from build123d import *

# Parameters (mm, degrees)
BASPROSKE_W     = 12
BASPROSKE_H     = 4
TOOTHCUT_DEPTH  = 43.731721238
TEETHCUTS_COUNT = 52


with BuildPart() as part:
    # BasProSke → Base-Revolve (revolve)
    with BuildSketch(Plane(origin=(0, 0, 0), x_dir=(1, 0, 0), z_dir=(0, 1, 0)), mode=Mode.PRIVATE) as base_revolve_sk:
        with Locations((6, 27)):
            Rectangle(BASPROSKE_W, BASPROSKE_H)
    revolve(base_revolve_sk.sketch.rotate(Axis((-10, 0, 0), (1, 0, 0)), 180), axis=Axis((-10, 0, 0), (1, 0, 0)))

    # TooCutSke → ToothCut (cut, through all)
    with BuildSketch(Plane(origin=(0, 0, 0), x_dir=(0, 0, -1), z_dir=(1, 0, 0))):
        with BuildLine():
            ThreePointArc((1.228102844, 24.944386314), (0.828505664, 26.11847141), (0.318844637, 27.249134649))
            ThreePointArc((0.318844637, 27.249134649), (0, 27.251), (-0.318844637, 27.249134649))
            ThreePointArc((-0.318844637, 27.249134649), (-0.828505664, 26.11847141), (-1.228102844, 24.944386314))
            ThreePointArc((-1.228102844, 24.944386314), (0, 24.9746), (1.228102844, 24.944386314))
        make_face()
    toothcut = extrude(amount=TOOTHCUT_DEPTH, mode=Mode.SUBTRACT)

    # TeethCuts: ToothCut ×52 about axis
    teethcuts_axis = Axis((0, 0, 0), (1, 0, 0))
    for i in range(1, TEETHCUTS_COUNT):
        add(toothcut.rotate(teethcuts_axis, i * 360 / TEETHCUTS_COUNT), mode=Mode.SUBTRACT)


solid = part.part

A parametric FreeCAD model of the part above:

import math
import FreeCAD as App
import Part
import Sketcher


def add_polygon(sketch, points):
    """Adds a closed chain of lines whose ends are joined by coincident constraints."""
    first, n = sketch.GeometryCount, len(points)
    for a, b in zip(points, points[1:] + points[:1]):
        sketch.addGeometry(Part.LineSegment(App.Vector(*a, 0), App.Vector(*b, 0)), False)
    for i in range(n):
        sketch.addConstraint(Sketcher.Constraint("Coincident", first + i, 2, first + (i + 1) % n, 1))

doc = App.newDocument("Part")
body = doc.addObject("PartDesign::Body", "Body")

# Sketch on XZ plane
sketch1 = body.newObject("Sketcher::SketchObject", "Sketch")
sketch1.AttachmentSupport = (doc.getObject("XZ_Plane"), [""])
sketch1.MapMode = "FlatFace"
add_polygon(sketch1, [(0, -29), (0, -25), (12, -25), (12, -29)])  # lines 0-3
sketch1.addConstraint(Sketcher.Constraint("Vertical", 0))
sketch1.addConstraint(Sketcher.Constraint("Horizontal", 1))
sketch1.addConstraint(Sketcher.Constraint("Vertical", 2))
sketch1.addConstraint(Sketcher.Constraint("Horizontal", 3))
sketch1.addConstraint(Sketcher.Constraint("PointOnObject", 0, 2, -2))
sketch1.addConstraint(Sketcher.Constraint("DistanceX", 1, 1, 1, 2, 12.0))
sketch1.addConstraint(Sketcher.Constraint("DistanceY", 0, 1, 0, 2, 4.0))
sketch1.addConstraint(Sketcher.Constraint("DistanceY", 0, 2, -1, 1, 25.0))
revolution = body.newObject("PartDesign::Revolution", "Revolution")
revolution.Profile = sketch1
revolution.ReferenceAxis = (sketch1, ["H_Axis"])
revolution.Angle = 360

# Sketch on YZ plane
sketch2 = body.newObject("Sketcher::SketchObject", "Sketch001")
sketch2.AttachmentSupport = (doc.getObject("YZ_Plane"), [""])
sketch2.MapMode = "FlatFace"
sketch2.addGeometry(Part.ArcOfCircle(Part.Circle(App.Vector(21.3, 11.3, 0), App.Vector(0, 0, 1), 13), math.radians(-73.94), math.radians(-63)), False)
sketch2.addGeometry(Part.ArcOfCircle(Part.Circle(App.Vector(0, 0, 0), App.Vector(0, 0, 1), 27.3), math.radians(-0.67), math.radians(0.67)), False)
sketch2.addGeometry(Part.ArcOfCircle(Part.Circle(App.Vector(21.3, -11.3, 0), App.Vector(0, 0, 1), 13), math.radians(63), math.radians(73.94)), False)
sketch2.addGeometry(Part.ArcOfCircle(Part.Circle(App.Vector(0, 0, 0), App.Vector(0, 0, 1), 25), math.radians(-2.82), math.radians(2.82)), False)
sketch2.addConstraint(Sketcher.Constraint("Coincident", 0, 2, 1, 1))
sketch2.addConstraint(Sketcher.Constraint("Coincident", 1, 2, 2, 1))
sketch2.addConstraint(Sketcher.Constraint("Coincident", 2, 2, 3, 2))
sketch2.addConstraint(Sketcher.Constraint("Coincident", 3, 1, 0, 1))
sketch2.addConstraint(Sketcher.Constraint("Coincident", 1, 3, -1, 1))
sketch2.addConstraint(Sketcher.Constraint("Coincident", 3, 3, -1, 1))
sketch2.addConstraint(Sketcher.Constraint("Equal", 0, 2))
sketch2.addConstraint(Sketcher.Constraint("Symmetric", 0, 3, 2, 3, -1))
sketch2.addConstraint(Sketcher.Constraint("Radius", 0, 13.0))
sketch2.addConstraint(Sketcher.Constraint("Radius", 3, 24.9746))
sketch2.addConstraint(Sketcher.Constraint("Radius", 1, 27.251006))
sketch2.addConstraint(Sketcher.Constraint("DistanceX", 1, 3, 0, 3, 21.347632))
sketch2.addConstraint(Sketcher.Constraint("DistanceY", 0, 2, 1, 2, 0.637689))
pocket1 = body.newObject("PartDesign::Pocket", "Pocket")
pocket1.Profile = sketch2
pocket1.Type = "ThroughAll"
pocket1.Reversed = True
doc.recompute()

polarpattern = body.newObject("PartDesign::PolarPattern", "PolarPattern")
polarpattern.Originals = [pocket1]
polarpattern.Axis = (doc.getObject("X_Axis"), [""])
polarpattern.Angle = 360
polarpattern.Occurrences = 52
body.Tip = polarpattern

doc.recompute()
